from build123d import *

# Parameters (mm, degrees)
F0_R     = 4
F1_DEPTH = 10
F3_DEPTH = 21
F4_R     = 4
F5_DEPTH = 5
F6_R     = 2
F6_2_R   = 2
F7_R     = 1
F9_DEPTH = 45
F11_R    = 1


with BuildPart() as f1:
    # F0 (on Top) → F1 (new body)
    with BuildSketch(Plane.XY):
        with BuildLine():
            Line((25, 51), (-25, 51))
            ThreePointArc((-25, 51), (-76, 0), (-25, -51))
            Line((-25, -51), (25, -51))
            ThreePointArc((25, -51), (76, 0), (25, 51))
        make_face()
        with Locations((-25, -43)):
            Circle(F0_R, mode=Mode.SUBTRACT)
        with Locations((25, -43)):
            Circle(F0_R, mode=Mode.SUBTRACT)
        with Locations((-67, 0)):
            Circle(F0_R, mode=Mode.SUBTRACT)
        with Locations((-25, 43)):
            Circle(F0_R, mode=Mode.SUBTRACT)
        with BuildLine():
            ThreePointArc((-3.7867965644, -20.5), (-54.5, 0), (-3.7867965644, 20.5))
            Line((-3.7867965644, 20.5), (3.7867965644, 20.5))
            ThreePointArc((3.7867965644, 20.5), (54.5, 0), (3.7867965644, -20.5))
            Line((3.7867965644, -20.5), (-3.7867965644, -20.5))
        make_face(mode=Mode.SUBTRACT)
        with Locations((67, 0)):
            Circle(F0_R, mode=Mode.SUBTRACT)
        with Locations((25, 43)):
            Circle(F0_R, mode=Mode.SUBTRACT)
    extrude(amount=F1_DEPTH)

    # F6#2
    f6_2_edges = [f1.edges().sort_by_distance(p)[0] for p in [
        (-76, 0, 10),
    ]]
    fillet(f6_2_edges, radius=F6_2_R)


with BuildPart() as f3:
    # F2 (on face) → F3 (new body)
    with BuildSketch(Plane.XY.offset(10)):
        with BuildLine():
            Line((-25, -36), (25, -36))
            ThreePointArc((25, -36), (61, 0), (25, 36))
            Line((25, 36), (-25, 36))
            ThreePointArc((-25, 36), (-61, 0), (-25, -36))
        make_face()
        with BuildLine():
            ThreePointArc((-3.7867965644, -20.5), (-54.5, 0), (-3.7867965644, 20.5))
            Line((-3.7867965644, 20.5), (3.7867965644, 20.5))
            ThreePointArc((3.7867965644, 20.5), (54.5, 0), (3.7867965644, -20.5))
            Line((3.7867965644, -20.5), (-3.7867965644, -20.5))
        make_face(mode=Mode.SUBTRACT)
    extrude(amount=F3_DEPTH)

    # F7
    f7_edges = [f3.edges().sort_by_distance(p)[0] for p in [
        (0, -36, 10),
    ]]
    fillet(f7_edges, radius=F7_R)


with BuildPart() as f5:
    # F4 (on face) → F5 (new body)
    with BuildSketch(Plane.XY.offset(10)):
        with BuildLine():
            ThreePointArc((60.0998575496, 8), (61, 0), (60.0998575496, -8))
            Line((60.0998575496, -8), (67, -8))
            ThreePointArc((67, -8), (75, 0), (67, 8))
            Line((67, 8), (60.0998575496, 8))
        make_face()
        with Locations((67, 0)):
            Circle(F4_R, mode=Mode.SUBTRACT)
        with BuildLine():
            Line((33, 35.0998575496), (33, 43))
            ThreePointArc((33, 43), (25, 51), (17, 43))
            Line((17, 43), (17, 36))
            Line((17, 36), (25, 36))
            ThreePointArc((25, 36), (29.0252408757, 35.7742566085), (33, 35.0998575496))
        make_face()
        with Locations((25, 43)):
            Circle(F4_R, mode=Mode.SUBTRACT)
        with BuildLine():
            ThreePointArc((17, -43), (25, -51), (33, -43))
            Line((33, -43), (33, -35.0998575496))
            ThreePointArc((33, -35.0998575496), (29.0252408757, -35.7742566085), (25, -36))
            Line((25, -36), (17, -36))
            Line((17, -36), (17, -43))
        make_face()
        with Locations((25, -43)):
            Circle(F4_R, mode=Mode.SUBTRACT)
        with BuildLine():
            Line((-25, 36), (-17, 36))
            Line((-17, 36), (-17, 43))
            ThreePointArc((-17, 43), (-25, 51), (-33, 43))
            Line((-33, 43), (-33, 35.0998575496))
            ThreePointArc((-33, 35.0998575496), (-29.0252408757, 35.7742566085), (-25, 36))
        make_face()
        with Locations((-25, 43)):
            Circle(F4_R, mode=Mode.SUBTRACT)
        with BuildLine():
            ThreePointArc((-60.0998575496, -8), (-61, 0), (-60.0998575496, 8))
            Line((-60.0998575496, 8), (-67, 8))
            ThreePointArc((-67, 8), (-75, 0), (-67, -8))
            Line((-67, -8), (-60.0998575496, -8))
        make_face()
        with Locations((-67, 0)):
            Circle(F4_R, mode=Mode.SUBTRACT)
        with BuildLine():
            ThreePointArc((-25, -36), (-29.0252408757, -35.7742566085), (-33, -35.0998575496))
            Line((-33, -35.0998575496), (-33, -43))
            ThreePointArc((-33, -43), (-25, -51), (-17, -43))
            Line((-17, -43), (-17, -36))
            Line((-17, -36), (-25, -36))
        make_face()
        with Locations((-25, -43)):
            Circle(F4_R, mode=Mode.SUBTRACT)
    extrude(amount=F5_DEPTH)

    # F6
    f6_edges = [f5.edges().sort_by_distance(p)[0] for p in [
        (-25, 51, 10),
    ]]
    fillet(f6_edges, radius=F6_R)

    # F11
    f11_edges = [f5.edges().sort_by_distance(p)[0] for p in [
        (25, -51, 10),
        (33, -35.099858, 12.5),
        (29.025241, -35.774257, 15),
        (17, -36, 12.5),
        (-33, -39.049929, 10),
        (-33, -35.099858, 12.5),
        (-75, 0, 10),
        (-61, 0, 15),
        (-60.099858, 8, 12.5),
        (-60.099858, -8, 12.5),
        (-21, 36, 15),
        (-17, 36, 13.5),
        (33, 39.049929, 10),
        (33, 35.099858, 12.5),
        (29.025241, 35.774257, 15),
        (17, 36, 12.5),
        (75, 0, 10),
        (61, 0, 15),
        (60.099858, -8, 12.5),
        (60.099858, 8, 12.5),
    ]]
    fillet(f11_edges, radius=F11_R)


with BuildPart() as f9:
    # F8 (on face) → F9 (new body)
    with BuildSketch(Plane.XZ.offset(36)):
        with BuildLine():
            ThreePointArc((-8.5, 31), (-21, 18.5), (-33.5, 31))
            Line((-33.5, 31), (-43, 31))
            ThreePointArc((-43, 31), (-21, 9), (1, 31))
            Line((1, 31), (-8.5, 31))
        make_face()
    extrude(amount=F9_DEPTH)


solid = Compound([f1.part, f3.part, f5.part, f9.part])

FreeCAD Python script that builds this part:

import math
import FreeCAD as App
import Part
import Sketcher
from FreeCAD import Vector


def edges_at(feature, points):
    """Names of the edges that pass closest to the given points."""
    edges = feature.Shape.Edges
    near = lambda p: min(range(len(edges)), key=lambda i: edges[i].distToShape(Part.Vertex(*p))[0])
    return sorted({f"Edge{near(p) + 1}" for p in points})

doc = App.newDocument("Part")
body = doc.addObject("PartDesign::Body", "Body")

# Sketch on XY plane
sketch1 = body.newObject("Sketcher::SketchObject", "Sketch")
sketch1.AttachmentSupport = (doc.getObject("XY_Plane"), [""])
sketch1.MapMode = "FlatFace"
sketch1.addGeometry(Part.LineSegment(Vector(25, 51, 0), Vector(-25, 51, 0)), False)
sketch1.addGeometry(Part.ArcOfCircle(Part.Circle(Vector(-25, 0, 0), Vector(0, 0, 1), 51), math.radians(90), math.radians(270)), False)
sketch1.addGeometry(Part.LineSegment(Vector(-25, -51, 0), Vector(25, -51, 0)), False)
sketch1.addGeometry(Part.ArcOfCircle(Part.Circle(Vector(25, 0, 0), Vector(0, 0, 1), 51), math.radians(-90), math.radians(90)), False)
sketch1.addGeometry(Part.Circle(Vector(-25, -43, 0), Vector(0, 0, 1), 4), False)
sketch1.addGeometry(Part.Circle(Vector(25, -43, 0), Vector(0, 0, 1), 4), False)
sketch1.addGeometry(Part.Circle(Vector(-67, 0, 0), Vector(0, 0, 1), 4), False)
sketch1.addGeometry(Part.Circle(Vector(-25, 43, 0), Vector(0, 0, 1), 4), False)
sketch1.addGeometry(Part.LineSegment(Vector(3.786797, -20.5, 0), Vector(-3.786797, -20.5, 0)), False)
sketch1.addGeometry(Part.ArcOfCircle(Part.Circle(Vector(-25, 0, 0), Vector(0, 0, 1), 29.5), math.radians(44.020464), math.radians(315.979536)), False)
sketch1.addGeometry(Part.LineSegment(Vector(-3.786797, 20.5, 0), Vector(3.786797, 20.5, 0)), False)
sketch1.addGeometry(Part.ArcOfCircle(Part.Circle(Vector(25, 0, 0), Vector(0, 0, 1), 29.5), math.radians(-135.979536), math.radians(135.979536)), False)
sketch1.addGeometry(Part.Circle(Vector(67, 0, 0), Vector(0, 0, 1), 4), False)
sketch1.addGeometry(Part.Circle(Vector(25, 43, 0), Vector(0, 0, 1), 4), False)
sketch1.addConstraint(Sketcher.Constraint("Tangent", 0, 2, 1, 1))
sketch1.addConstraint(Sketcher.Constraint("Tangent", 1, 2, 2, 1))
sketch1.addConstraint(Sketcher.Constraint("Tangent", 2, 2, 3, 1))
sketch1.addConstraint(Sketcher.Constraint("Tangent", 3, 2, 0, 1))
sketch1.addConstraint(Sketcher.Constraint("Coincident", 8, 2, 9, 2))
sketch1.addConstraint(Sketcher.Constraint("Coincident", 9, 1, 10, 1))
sketch1.addConstraint(Sketcher.Constraint("Coincident", 10, 2, 11, 2))
sketch1.addConstraint(Sketcher.Constraint("Coincident", 11, 1, 8, 1))
sketch1.addConstraint(Sketcher.Constraint("Horizontal", 0))
sketch1.addConstraint(Sketcher.Constraint("Horizontal", 2))
sketch1.addConstraint(Sketcher.Constraint("Horizontal", 8))
sketch1.addConstraint(Sketcher.Constraint("Horizontal", 10))
sketch1.addConstraint(Sketcher.Constraint("Coincident", 9, 3, 1, 3))
sketch1.addConstraint(Sketcher.Constraint("Coincident", 11, 3, 3, 3))
sketch1.addConstraint(Sketcher.Constraint("Equal", 4, 5))
sketch1.addConstraint(Sketcher.Constraint("Equal", 5, 6))
sketch1.addConstraint(Sketcher.Constraint("Equal", 6, 7))
sketch1.addConstraint(Sketcher.Constraint("Equal", 9, 11))
sketch1.addConstraint(Sketcher.Constraint("Equal", 7, 12))
sketch1.addConstraint(Sketcher.Constraint("Equal", 12, 13))
sketch1.addConstraint(Sketcher.Constraint("Symmetric", 1, 3, 3, 3, -1, 1))
sketch1.addConstraint(Sketcher.Constraint("Symmetric", 5, 3, 7, 3, -1, 1))
sketch1.addConstraint(Sketcher.Constraint("Symmetric", 6, 3, 12, 3, -1, 1))
sketch1.addConstraint(Sketcher.Constraint("Symmetric", 4, 3, 13, 3, -1, 1))
sketch1.addConstraint(Sketcher.Constraint("Symmetric", 4, 3, 5, 3, -2))
sketch1.addConstraint(Sketcher.Constraint("PointOnObject", 6, 3, -1))
sketch1.addConstraint(Sketcher.Constraint("Vertical", 1, 3, 4, 3))
sketch1.addConstraint(Sketcher.Constraint("Vertical", 8, 2, 9, 1))
sketch1.addConstraint(Sketcher.Constraint("Diameter", 4, 8.0))
sketch1.addConstraint(Sketcher.Constraint("Radius", 1, 51.0))
sketch1.addConstraint(Sketcher.Constraint("Radius", 9, 29.5))
sketch1.addConstraint(Sketcher.Constraint("DistanceX", 0, 2, 0, 1, 50.0))
sketch1.addConstraint(Sketcher.Constraint("DistanceY", 4, 3, -1, 1, 43.0))
sketch1.addConstraint(Sketcher.Constraint("DistanceX", 6, 3, -1, 1, 67.0))
sketch1.addConstraint(Sketcher.Constraint("DistanceY", 8, 2, -1, 1, 20.5))
pad1 = body.newObject("PartDesign::Pad", "Pad")
pad1.Profile = sketch1
pad1.Length = 10
doc.recompute()

fillet = body.newObject("PartDesign::Fillet", "Fillet")
fillet.Base = (pad1, edges_at(pad1, [(-76, 0, 10)]))
fillet.Radius = 2
body2 = doc.addObject("PartDesign::Body", "Body001")

# Sketch on XY plane
sketch2 = body2.newObject("Sketcher::SketchObject", "Sketch001")
sketch2.AttachmentSupport = (doc.getObject("XY_Plane001"), [""])
sketch2.MapMode = "FlatFace"
sketch2.AttachmentOffset = App.Placement(Vector(0, 0, 10), App.Rotation())
sketch2.addGeometry(Part.LineSegment(Vector(-25, -36, 0), Vector(25, -36, 0)), False)
sketch2.addGeometry(Part.ArcOfCircle(Part.Circle(Vector(25, 0, 0), Vector(0, 0, 1), 36), math.radians(-90), math.radians(90)), False)
sketch2.addGeometry(Part.LineSegment(Vector(25, 36, 0), Vector(-25, 36, 0)), False)
sketch2.addGeometry(Part.ArcOfCircle(Part.Circle(Vector(-25, 0, 0), Vector(0, 0, 1), 36), math.radians(90), math.radians(270)), False)
sketch2.addGeometry(Part.LineSegment(Vector(3.786797, -20.5, 0), Vector(-3.786797, -20.5, 0)), False)
sketch2.addGeometry(Part.ArcOfCircle(Part.Circle(Vector(-25, 0, 0), Vector(0, 0, 1), 29.5), math.radians(44.020464), math.radians(315.979536)), False)
sketch2.addGeometry(Part.LineSegment(Vector(-3.786797, 20.5, 0), Vector(3.786797, 20.5, 0)), False)
sketch2.addGeometry(Part.ArcOfCircle(Part.Circle(Vector(25, 0, 0), Vector(0, 0, 1), 29.5), math.radians(-135.979536), math.radians(135.979536)), False)
sketch2.addConstraint(Sketcher.Constraint("Tangent", 0, 2, 1, 1))
sketch2.addConstraint(Sketcher.Constraint("Tangent", 1, 2, 2, 1))
sketch2.addConstraint(Sketcher.Constraint("Tangent", 2, 2, 3, 1))
sketch2.addConstraint(Sketcher.Constraint("Tangent", 3, 2, 0, 1))
sketch2.addConstraint(Sketcher.Constraint("Coincident", 4, 2, 5, 2))
sketch2.addConstraint(Sketcher.Constraint("Coincident", 5, 1, 6, 1))
sketch2.addConstraint(Sketcher.Constraint("Coincident", 6, 2, 7, 2))
sketch2.addConstraint(Sketcher.Constraint("Coincident", 7, 1, 4, 1))
sketch2.addConstraint(Sketcher.Constraint("Horizontal", 0))
sketch2.addConstraint(Sketcher.Constraint("Horizontal", 2))
sketch2.addConstraint(Sketcher.Constraint("Horizontal", 4))
sketch2.addConstraint(Sketcher.Constraint("Horizontal", 6))
sketch2.addConstraint(Sketcher.Constraint("Coincident", 5, 3, 3, 3))
sketch2.addConstraint(Sketcher.Constraint("Coincident", 7, 3, 1, 3))
sketch2.addConstraint(Sketcher.Constraint("Equal", 5, 7))
sketch2.addConstraint(Sketcher.Constraint("Symmetric", 1, 3, 3, 3, -1, 1))
sketch2.addConstraint(Sketcher.Constraint("Vertical", 4, 2, 5, 1))
sketch2.addConstraint(Sketcher.Constraint("Radius", 1, 36.0))
sketch2.addConstraint(Sketcher.Constraint("Radius", 5, 29.5))
sketch2.addConstraint(Sketcher.Constraint("DistanceX", 0, 1, 0, 2, 50.0))
sketch2.addConstraint(Sketcher.Constraint("DistanceY", 4, 2, -1, 1, 20.5))
pad2 = body2.newObject("PartDesign::Pad", "Pad001")
pad2.Profile = sketch2
pad2.Length = 21
doc.recompute()

fillet2 = body2.newObject("PartDesign::Fillet", "Fillet001")
fillet2.Base = (pad2, edges_at(pad2, [(0, -36, 10)]))
fillet2.Radius = 1
body3 = doc.addObject("PartDesign::Body", "Body002")
body3.AllowCompound = True

# Sketch on XY plane
sketch3 = body3.newObject("Sketcher::SketchObject", "Sketch002")
sketch3.AttachmentSupport = (doc.getObject("XY_Plane002"), [""])
sketch3.MapMode = "FlatFace"
sketch3.AttachmentOffset = App.Placement(Vector(0, 0, 10), App.Rotation())
sketch3.addGeometry(Part.ArcOfCircle(Part.Circle(Vector(25, 0, 0), Vector(0, 0, 1), 36), math.radians(-12.839588), math.radians(12.839588)), False)
sketch3.addGeometry(Part.LineSegment(Vector(60.099858, -8, 0), Vector(67, -8, 0)), False)
sketch3.addGeometry(Part.ArcOfCircle(Part.Circle(Vector(67, 0, 0), Vector(0, 0, 1), 8), math.radians(-90), math.radians(90)), False)
sketch3.addGeometry(Part.LineSegment(Vector(67, 8, 0), Vector(60.099858, 8, 0)), False)
sketch3.addGeometry(Part.Circle(Vector(67, 0, 0), Vector(0, 0, 1), 4), False)
sketch3.addGeometry(Part.LineSegment(Vector(33, 35.099858, 0), Vector(33, 43, 0)), False)
sketch3.addGeometry(Part.ArcOfCircle(Part.Circle(Vector(25, 43, 0), Vector(0, 0, 1), 8), math.radians(0), math.radians(180)), False)
sketch3.addGeometry(Part.LineSegment(Vector(17, 43, 0), Vector(17, 36, 0)), False)
sketch3.addGeometry(Part.LineSegment(Vector(17, 36, 0), Vector(25, 36, 0)), False)
sketch3.addGeometry(Part.ArcOfCircle(Part.Circle(Vector(25, 0, 0), Vector(0, 0, 1), 36), math.radians(77.160412), math.radians(90)), False)
sketch3.addGeometry(Part.Circle(Vector(25, 43, 0), Vector(0, 0, 1), 4), False)
sketch3.addGeometry(Part.ArcOfCircle(Part.Circle(Vector(25, -43, 0), Vector(0, 0, 1), 8), math.radians(180), math.radians(360)), False)
sketch3.addGeometry(Part.LineSegment(Vector(33, -43, 0), Vector(33, -35.099858, 0)), False)
sketch3.addGeometry(Part.ArcOfCircle(Part.Circle(Vector(25, 0, 0), Vector(0, 0, 1), 36), math.radians(-90), math.radians(-77.160412)), False)
sketch3.addGeometry(Part.LineSegment(Vector(25, -36, 0), Vector(17, -36, 0)), False)
sketch3.addGeometry(Part.LineSegment(Vector(17, -36, 0), Vector(17, -43, 0)), False)
sketch3.addGeometry(Part.Circle(Vector(25, -43, 0), Vector(0, 0, 1), 4), False)
sketch3.addGeometry(Part.LineSegment(Vector(-25, 36, 0), Vector(-17, 36, 0)), False)
sketch3.addGeometry(Part.LineSegment(Vector(-17, 36, 0), Vector(-17, 43, 0)), False)
sketch3.addGeometry(Part.ArcOfCircle(Part.Circle(Vector(-25, 43, 0), Vector(0, 0, 1), 8), math.radians(0), math.radians(180)), False)
sketch3.addGeometry(Part.LineSegment(Vector(-33, 43, 0), Vector(-33, 35.099858, 0)), False)
sketch3.addGeometry(Part.ArcOfCircle(Part.Circle(Vector(-25, 0, 0), Vector(0, 0, 1), 36), math.radians(90), math.radians(102.839588)), False)
sketch3.addGeometry(Part.Circle(Vector(-25, 43, 0), Vector(0, 0, 1), 4), False)
sketch3.addGeometry(Part.ArcOfCircle(Part.Circle(Vector(-25, 0, 0), Vector(0, 0, 1), 36), math.radians(167.160412), math.radians(192.839588)), False)
sketch3.addGeometry(Part.LineSegment(Vector(-60.099858, 8, 0), Vector(-67, 8, 0)), False)
sketch3.addGeometry(Part.ArcOfCircle(Part.Circle(Vector(-67, 0, 0), Vector(0, 0, 1), 8), math.radians(90), math.radians(270)), False)
sketch3.addGeometry(Part.LineSegment(Vector(-67, -8, 0), Vector(-60.099858, -8, 0)), False)
sketch3.addGeometry(Part.Circle(Vector(-67, 0, 0), Vector(0, 0, 1), 4), False)
sketch3.addGeometry(Part.ArcOfCircle(Part.Circle(Vector(-25, 0, 0), Vector(0, 0, 1), 36), math.radians(-102.839588), math.radians(-90)), False)
sketch3.addGeometry(Part.LineSegment(Vector(-33, -35.099858, 0), Vector(-33, -43, 0)), False)
sketch3.addGeometry(Part.ArcOfCircle(Part.Circle(Vector(-25, -43, 0), Vector(0, 0, 1), 8), math.radians(180), math.radians(360)), False)
sketch3.addGeometry(Part.LineSegment(Vector(-17, -43, 0), Vector(-17, -36, 0)), False)
sketch3.addGeometry(Part.LineSegment(Vector(-17, -36, 0), Vector(-25, -36, 0)), False)
sketch3.addGeometry(Part.Circle(Vector(-25, -43, 0), Vector(0, 0, 1), 4), False)
sketch3.addConstraint(Sketcher.Constraint("Coincident", 0, 1, 1, 1))
sketch3.addConstraint(Sketcher.Constraint("Tangent", 1, 2, 2, 1))
sketch3.addConstraint(Sketcher.Constraint("Tangent", 2, 2, 3, 1))
sketch3.addConstraint(Sketcher.Constraint("Coincident", 3, 2, 0, 2))
sketch3.addConstraint(Sketcher.Constraint("Tangent", 5, 2, 6, 1))
sketch3.addConstraint(Sketcher.Constraint("Tangent", 6, 2, 7, 1))
sketch3.addConstraint(Sketcher.Constraint("Coincident", 7, 2, 8, 1))
sketch3.addConstraint(Sketcher.Constraint("Tangent", 8, 2, 9, 2))
sketch3.addConstraint(Sketcher.Constraint("Coincident", 9, 1, 5, 1))
sketch3.addConstraint(Sketcher.Constraint("Tangent", 11, 2, 12, 1))
sketch3.addConstraint(Sketcher.Constraint("Coincident", 12, 2, 13, 2))
sketch3.addConstraint(Sketcher.Constraint("Tangent", 13, 1, 14, 1))
sketch3.addConstraint(Sketcher.Constraint("Coincident", 14, 2, 15, 1))
sketch3.addConstraint(Sketcher.Constraint("Tangent", 15, 2, 11, 1))
sketch3.addConstraint(Sketcher.Constraint("Coincident", 17, 2, 18, 1))
sketch3.addConstraint(Sketcher.Constraint("Tangent", 18, 2, 19, 1))
sketch3.addConstraint(Sketcher.Constraint("Tangent", 19, 2, 20, 1))
sketch3.addConstraint(Sketcher.Constraint("Coincident", 20, 2, 21, 2))
sketch3.addConstraint(Sketcher.Constraint("Tangent", 21, 1, 17, 1))
sketch3.addConstraint(Sketcher.Constraint("Coincident", 23, 1, 24, 1))
sketch3.addConstraint(Sketcher.Constraint("Tangent", 24, 2, 25, 1))
sketch3.addConstraint(Sketcher.Constraint("Tangent", 25, 2, 26, 1))
sketch3.addConstraint(Sketcher.Constraint("Coincident", 26, 2, 23, 2))
sketch3.addConstraint(Sketcher.Constraint("Coincident", 28, 1, 29, 1))
sketch3.addConstraint(Sketcher.Constraint("Tangent", 29, 2, 30, 1))
sketch3.addConstraint(Sketcher.Constraint("Tangent", 30, 2, 31, 1))
sketch3.addConstraint(Sketcher.Constraint("Coincident", 31, 2, 32, 1))
sketch3.addConstraint(Sketcher.Constraint("Tangent", 32, 2, 28, 2))
sketch3.addConstraint(Sketcher.Constraint("Horizontal", 1))
sketch3.addConstraint(Sketcher.Constraint("Horizontal", 3))
sketch3.addConstraint(Sketcher.Constraint("Vertical", 5))
sketch3.addConstraint(Sketcher.Constraint("Vertical", 7))
sketch3.addConstraint(Sketcher.Constraint("Horizontal", 8))
sketch3.addConstraint(Sketcher.Constraint("Vertical", 12))
sketch3.addConstraint(Sketcher.Constraint("Horizontal", 14))
sketch3.addConstraint(Sketcher.Constraint("Vertical", 15))
sketch3.addConstraint(Sketcher.Constraint("Horizontal", 17))
sketch3.addConstraint(Sketcher.Constraint("Vertical", 18))
sketch3.addConstraint(Sketcher.Constraint("Vertical", 20))
sketch3.addConstraint(Sketcher.Constraint("Horizontal", 24))
sketch3.addConstraint(Sketcher.Constraint("Horizontal", 26))
sketch3.addConstraint(Sketcher.Constraint("Vertical", 29))
sketch3.addConstraint(Sketcher.Constraint("Vertical", 31))
sketch3.addConstraint(Sketcher.Constraint("Horizontal", 32))
sketch3.addConstraint(Sketcher.Constraint("Coincident", 4, 3, 2, 3))
sketch3.addConstraint(Sketcher.Constraint("Coincident", 9, 3, 0, 3))
sketch3.addConstraint(Sketcher.Constraint("Coincident", 10, 3, 6, 3))
sketch3.addConstraint(Sketcher.Constraint("Coincident", 13, 3, 0, 3))
sketch3.addConstraint(Sketcher.Constraint("Coincident", 16, 3, 11, 3))
sketch3.addConstraint(Sketcher.Constraint("Coincident", 22, 3, 19, 3))
sketch3.addConstraint(Sketcher.Constraint("Coincident", 23, 3, 21, 3))
sketch3.addConstraint(Sketcher.Constraint("Coincident", 27, 3, 25, 3))
sketch3.addConstraint(Sketcher.Constraint("Coincident", 28, 3, 21, 3))
sketch3.addConstraint(Sketcher.Constraint("Coincident", 33, 3, 30, 3))
sketch3.addConstraint(Sketcher.Constraint("Equal", 2, 6))
sketch3.addConstraint(Sketcher.Constraint("Equal", 0, 9))
sketch3.addConstraint(Sketcher.Constraint("Equal", 4, 10))
sketch3.addConstraint(Sketcher.Constraint("Equal", 6, 11))
sketch3.addConstraint(Sketcher.Constraint("Equal", 9, 13))
sketch3.addConstraint(Sketcher.Constraint("Equal", 10, 16))
sketch3.addConstraint(Sketcher.Constraint("Equal", 11, 19))
sketch3.addConstraint(Sketcher.Constraint("Equal", 13, 21))
sketch3.addConstraint(Sketcher.Constraint("Equal", 16, 22))
sketch3.addConstraint(Sketcher.Constraint("Equal", 21, 23))
sketch3.addConstraint(Sketcher.Constraint("Equal", 19, 25))
sketch3.addConstraint(Sketcher.Constraint("Equal", 22, 27))
sketch3.addConstraint(Sketcher.Constraint("Equal", 23, 28))
sketch3.addConstraint(Sketcher.Constraint("Equal", 25, 30))
sketch3.addConstraint(Sketcher.Constraint("Equal", 27, 33))
sketch3.addConstraint(Sketcher.Constraint("Symmetric", 11, 3, 19, 3, -1, 1))
sketch3.addConstraint(Sketcher.Constraint("Symmetric", 0, 3, 21, 3, -1, 1))
sketch3.addConstraint(Sketcher.Constraint("Symmetric", 2, 3, 25, 3, -1, 1))
sketch3.addConstraint(Sketcher.Constraint("Symmetric", 6, 3, 30, 3, -1, 1))
sketch3.addConstraint(Sketcher.Constraint("Symmetric", 6, 3, 19, 3, -2))
sketch3.addConstraint(Sketcher.Constraint("Symmetric", 3, 2, 23, 1, -2))
sketch3.addConstraint(Sketcher.Constraint("Vertical", 0, 3, 6, 3))
sketch3.addConstraint(Sketcher.Constraint("Diameter", 4, 8.0))
sketch3.addConstraint(Sketcher.Constraint("Radius", 0, 36.0))
sketch3.addConstraint(Sketcher.Constraint("Radius", 2, 8.0))
sketch3.addConstraint(Sketcher.Constraint("DistanceY", 7, 2, 7, 1, 7.0))
sketch3.addConstraint(Sketcher.Constraint("DistanceX", -1, 1, 0, 3, 25.0))
sketch3.addConstraint(Sketcher.Constraint("DistanceX", -1, 1, 2, 3, 67.0))
pad3 = body3.newObject("PartDesign::Pad", "Pad002")
pad3.Profile = sketch3
pad3.Length = 5
doc.recompute()

fillet3 = body3.newObject("PartDesign::Fillet", "Fillet002")
fillet3.Base = (pad3, edges_at(pad3, [(-25, 51, 10)]))
fillet3.Radius = 2
doc.recompute()

fillet4 = body3.newObject("PartDesign::Fillet", "Fillet003")
fillet4.Base = (fillet3, edges_at(fillet3, [
    (25, -51, 10),
    (33, -35.1, 12.5),
    (29.025, -35.774, 15),
    (17, -36, 12.5),
    (-33, -39.05, 10),
    (-33, -35.1, 12.5),
    (-75, 0, 10),
    (-61, 0, 15),
    (-60.1, 8, 12.5),
    (-60.1, -8, 12.5),
    (-21, 36, 15),
    (-17, 36, 13.5),
    (33, 39.05, 10),
    (33, 35.1, 12.5),
    (29.025, 35.774, 15),
    (17, 36, 12.5),
    (75, 0, 10),
    (61, 0, 15),
    (60.1, -8, 12.5),
    (60.1, 8, 12.5),
]))
fillet4.Radius = 1
body4 = doc.addObject("PartDesign::Body", "Body003")

# Sketch on XZ plane
sketch4 = body4.newObject("Sketcher::SketchObject", "Sketch003")
sketch4.AttachmentSupport = (doc.getObject("XZ_Plane003"), [""])
sketch4.MapMode = "FlatFace"
sketch4.AttachmentOffset = App.Placement(Vector(0, 0, 36), App.Rotation())
sketch4.addGeometry(Part.ArcOfCircle(Part.Circle(Vector(-21, 31, 0), Vector(0, 0, 1), 12.5), math.radians(180), math.radians(360)), False)
sketch4.addGeometry(Part.LineSegment(Vector(-33.5, 31, 0), Vector(-43, 31, 0)), False)
sketch4.addGeometry(Part.ArcOfCircle(Part.Circle(Vector(-21, 31, 0), Vector(0, 0, 1), 22), math.radians(180), math.radians(360)), False)
sketch4.addGeometry(Part.LineSegment(Vector(1, 31, 0), Vector(-8.5, 31, 0)), False)
sketch4.addConstraint(Sketcher.Constraint("Coincident", 0, 1, 1, 1))
sketch4.addConstraint(Sketcher.Constraint("Coincident", 1, 2, 2, 1))
sketch4.addConstraint(Sketcher.Constraint("Coincident", 2, 2, 3, 1))
sketch4.addConstraint(Sketcher.Constraint("Coincident", 3, 2, 0, 2))
sketch4.addConstraint(Sketcher.Constraint("Horizontal", 1))
sketch4.addConstraint(Sketcher.Constraint("Horizontal", 3))
sketch4.addConstraint(Sketcher.Constraint("Coincident", 2, 3, 0, 3))
sketch4.addConstraint(Sketcher.Constraint("Horizontal", 2, 3, 0, 1))
sketch4.addConstraint(Sketcher.Constraint("Horizontal", 1, 2, 2, 2))
sketch4.addConstraint(Sketcher.Constraint("Radius", 2, 22.0))
sketch4.addConstraint(Sketcher.Constraint("Radius", 0, 12.5))
sketch4.addConstraint(Sketcher.Constraint("DistanceX", 0, 3, -1, 1, 21.0))
sketch4.addConstraint(Sketcher.Constraint("DistanceY", -1, 1, 0, 3, 31.0))
pad4 = body4.newObject("PartDesign::Pad", "Pad003")
pad4.Profile = sketch4
pad4.Length = 45

doc.recompute()
